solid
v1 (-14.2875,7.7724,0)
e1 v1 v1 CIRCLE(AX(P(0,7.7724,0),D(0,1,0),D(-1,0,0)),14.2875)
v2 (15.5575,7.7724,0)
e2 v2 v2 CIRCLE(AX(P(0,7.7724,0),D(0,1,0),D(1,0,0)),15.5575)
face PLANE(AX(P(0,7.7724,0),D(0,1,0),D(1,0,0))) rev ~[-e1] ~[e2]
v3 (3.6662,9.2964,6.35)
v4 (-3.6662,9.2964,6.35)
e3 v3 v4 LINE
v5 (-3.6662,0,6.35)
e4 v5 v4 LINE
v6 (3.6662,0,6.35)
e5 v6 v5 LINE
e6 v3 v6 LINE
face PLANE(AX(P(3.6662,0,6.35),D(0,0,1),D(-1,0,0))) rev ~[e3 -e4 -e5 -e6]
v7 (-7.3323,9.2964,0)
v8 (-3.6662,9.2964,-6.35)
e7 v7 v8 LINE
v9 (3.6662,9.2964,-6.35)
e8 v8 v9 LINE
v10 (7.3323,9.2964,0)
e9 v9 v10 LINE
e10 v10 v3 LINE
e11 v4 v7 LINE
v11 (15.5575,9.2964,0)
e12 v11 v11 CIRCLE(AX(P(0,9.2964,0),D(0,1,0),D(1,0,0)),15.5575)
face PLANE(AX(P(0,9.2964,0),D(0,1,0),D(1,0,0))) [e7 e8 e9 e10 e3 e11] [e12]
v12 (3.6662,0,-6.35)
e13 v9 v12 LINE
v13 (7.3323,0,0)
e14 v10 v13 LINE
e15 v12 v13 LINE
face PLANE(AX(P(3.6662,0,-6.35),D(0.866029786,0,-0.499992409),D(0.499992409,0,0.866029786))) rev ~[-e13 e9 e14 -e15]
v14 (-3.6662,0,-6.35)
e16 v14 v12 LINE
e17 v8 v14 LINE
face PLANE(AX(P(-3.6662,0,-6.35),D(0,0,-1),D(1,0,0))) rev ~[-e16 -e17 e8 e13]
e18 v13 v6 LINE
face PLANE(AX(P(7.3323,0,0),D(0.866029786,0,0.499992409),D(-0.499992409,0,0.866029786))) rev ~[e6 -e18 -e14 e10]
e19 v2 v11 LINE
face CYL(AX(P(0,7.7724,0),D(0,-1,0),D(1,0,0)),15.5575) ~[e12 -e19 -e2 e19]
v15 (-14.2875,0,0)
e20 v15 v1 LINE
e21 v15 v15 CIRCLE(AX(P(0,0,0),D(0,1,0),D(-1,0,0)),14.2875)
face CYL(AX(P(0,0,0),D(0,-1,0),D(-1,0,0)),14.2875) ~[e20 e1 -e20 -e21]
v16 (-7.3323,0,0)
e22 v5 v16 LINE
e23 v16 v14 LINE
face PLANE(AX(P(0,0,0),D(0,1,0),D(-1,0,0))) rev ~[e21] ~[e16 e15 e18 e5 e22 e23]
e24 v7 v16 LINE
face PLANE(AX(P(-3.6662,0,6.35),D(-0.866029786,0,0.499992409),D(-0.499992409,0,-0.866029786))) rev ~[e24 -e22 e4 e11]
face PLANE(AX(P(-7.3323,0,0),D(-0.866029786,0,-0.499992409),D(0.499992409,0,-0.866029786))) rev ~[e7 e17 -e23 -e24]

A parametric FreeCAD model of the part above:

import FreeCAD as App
import Part
import Sketcher
Q = App.Units.Quantity


def add_polygon(sketch, points):
    """Adds a closed chain of lines whose ends are joined by coincident constraints."""
    first, n = sketch.GeometryCount, len(points)
    for a, b in zip(points, points[1:] + points[:1]):
        sketch.addGeometry(Part.LineSegment(App.Vector(*a, 0), App.Vector(*b, 0)), False)
    for i in range(n):
        sketch.addConstraint(Sketcher.Constraint("Coincident", first + i, 2, first + (i + 1) % n, 1))

doc = App.newDocument("Part")
body = doc.addObject("PartDesign::Body", "Body")

# Sketch on XZ plane
sketch1 = body.newObject("Sketcher::SketchObject", "Sketch")
sketch1.AttachmentSupport = (doc.getObject("XZ_Plane"), [""])
sketch1.MapMode = "FlatFace"
sketch1.addGeometry(Part.Circle(App.Vector(0, 0, 0), App.Vector(0, 0, 1), 14), False)  # 0
add_polygon(sketch1, [(4, 6), (-4, 6), (-7, 0), (-4, -6), (4, -6), (7, 0)])  # lines 1-6
sketch1.addConstraint([
    Sketcher.Constraint("Horizontal", 1),
    Sketcher.Constraint("Horizontal", 4),
    Sketcher.Constraint("Coincident", 0, 3, -1, 1),
    Sketcher.Constraint("Symmetric", 1, 2, 4, 2, -1, 1),
    Sketcher.Constraint("Symmetric", 2, 2, 5, 2, -1, 1),
    Sketcher.Constraint("PointOnObject", 2, 2, -1),
    Sketcher.Constraint("Parallel", 3, 6),
    Sketcher.Constraint("Vertical", 1, 2, 3, 2),
    Sketcher.Constraint("Diameter", 0, Q("1.125 in")),
    Sketcher.Constraint("DistanceY", 3, 2, 1, 2, Q("0.5 in")),
    Sketcher.Constraint("Angle", 2, Q("-119.9995 deg")),
    Sketcher.Constraint("DistanceX", 2, 2, 4, 2, Q("0.433 in")),
])
pad1 = body.newObject("PartDesign::Pad", "Pad")
pad1.Profile = sketch1
pad1.Length = Q("0.306 in")
pad1.Reversed = True

# Sketch on XZ plane
sketch2 = body.newObject("Sketcher::SketchObject", "Sketch001")
sketch2.AttachmentSupport = (doc.getObject("XZ_Plane"), [""])
sketch2.MapMode = "FlatFace"
sketch2.AttachmentOffset = App.Placement(App.Vector(0, 0, -0.306 * 25.4), App.Rotation())
sketch2.addGeometry(Part.Circle(App.Vector(0, 0, 0), App.Vector(0, 0, 1), 16), False)  # 0
add_polygon(sketch2, [(-7, 0), (-4, -6), (4, -6), (7, 0), (4, 6), (-4, 6)])  # lines 1-6
sketch2.addConstraint([
    Sketcher.Constraint("Horizontal", 2),
    Sketcher.Constraint("Horizontal", 5),
    Sketcher.Constraint("Coincident", 0, 3, -1, 1),
    Sketcher.Constraint("Symmetric", 1, 2, 4, 2, -1, 1),
    Sketcher.Constraint("Symmetric", 3, 2, 6, 2, -1, 1),
    Sketcher.Constraint("PointOnObject", 3, 2, -1),
    Sketcher.Constraint("Parallel", 3, 6),
    Sketcher.Constraint("Vertical", 2, 2, 4, 2),
    Sketcher.Constraint("Diameter", 0, Q("1.225 in")),
    Sketcher.Constraint("Angle", 1, Q("-60.0005 deg")),
    Sketcher.Constraint("DistanceY", 2, 2, 4, 2, Q("0.5 in")),
    Sketcher.Constraint("DistanceX", 1, 2, 3, 2, Q("0.433 in")),
])
pad2 = body.newObject("PartDesign::Pad", "Pad001")
pad2.Profile = sketch2
pad2.Length = Q("0.06 in")
pad2.Reversed = True

doc.recompute()
